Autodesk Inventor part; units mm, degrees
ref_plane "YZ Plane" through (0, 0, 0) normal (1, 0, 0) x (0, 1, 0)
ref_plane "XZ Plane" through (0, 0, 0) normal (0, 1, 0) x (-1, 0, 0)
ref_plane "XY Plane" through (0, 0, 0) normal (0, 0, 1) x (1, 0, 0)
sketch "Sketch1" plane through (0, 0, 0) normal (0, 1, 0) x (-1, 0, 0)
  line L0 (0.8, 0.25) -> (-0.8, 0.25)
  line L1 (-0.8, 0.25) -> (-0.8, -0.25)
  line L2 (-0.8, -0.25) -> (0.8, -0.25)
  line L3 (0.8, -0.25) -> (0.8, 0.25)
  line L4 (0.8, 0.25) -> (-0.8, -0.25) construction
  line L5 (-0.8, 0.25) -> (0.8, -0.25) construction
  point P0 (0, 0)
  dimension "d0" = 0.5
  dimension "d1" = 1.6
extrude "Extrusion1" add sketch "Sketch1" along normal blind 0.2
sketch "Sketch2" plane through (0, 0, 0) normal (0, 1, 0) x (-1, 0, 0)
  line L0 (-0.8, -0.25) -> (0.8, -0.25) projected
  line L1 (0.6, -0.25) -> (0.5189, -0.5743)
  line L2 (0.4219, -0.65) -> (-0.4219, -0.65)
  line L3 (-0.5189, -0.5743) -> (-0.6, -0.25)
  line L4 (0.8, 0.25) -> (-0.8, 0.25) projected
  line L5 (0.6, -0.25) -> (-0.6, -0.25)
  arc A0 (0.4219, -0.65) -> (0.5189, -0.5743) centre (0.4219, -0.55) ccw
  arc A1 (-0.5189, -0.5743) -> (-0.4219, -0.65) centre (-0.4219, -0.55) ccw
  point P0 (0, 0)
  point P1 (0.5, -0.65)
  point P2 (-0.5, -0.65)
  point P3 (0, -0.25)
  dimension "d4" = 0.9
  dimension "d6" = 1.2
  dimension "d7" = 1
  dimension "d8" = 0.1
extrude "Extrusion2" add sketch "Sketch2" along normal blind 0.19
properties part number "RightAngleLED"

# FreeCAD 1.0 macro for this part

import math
import FreeCAD as App
import Part
import Sketcher
from FreeCAD import Vector
Q = App.Units.Quantity


def add_polygon(sketch, points):
    """Adds a closed chain of lines whose ends are joined by coincident constraints."""
    first, n = sketch.GeometryCount, len(points)
    for a, b in zip(points, points[1:] + points[:1]):
        sketch.addGeometry(Part.LineSegment(App.Vector(*a, 0), App.Vector(*b, 0)), False)
    for i in range(n):
        sketch.addConstraint(Sketcher.Constraint("Coincident", first + i, 2, first + (i + 1) % n, 1))

doc = App.newDocument("Part")
body = doc.addObject("PartDesign::Body", "Body")

# Sketch on XZ plane
sketch1 = body.newObject("Sketcher::SketchObject", "Sketch")
sketch1.AttachmentSupport = (doc.getObject("XZ_Plane"), [""])
sketch1.MapMode = "FlatFace"
add_polygon(sketch1, [(-0.8, -0.2), (-0.8, 0.2), (0.8, 0.2), (0.8, -0.2)])  # lines 0-3
sketch1.addConstraint([
    Sketcher.Constraint("Vertical", 0),
    Sketcher.Constraint("Horizontal", 1),
    Sketcher.Constraint("Vertical", 2),
    Sketcher.Constraint("Horizontal", 3),
    Sketcher.Constraint("Symmetric", 0, 2, 2, 2, -1, 1),
    Sketcher.Constraint("DistanceX", 1, 1, 1, 2, 1.6),
    Sketcher.Constraint("DistanceY", 0, 1, 0, 2, 0.5),
])
pad1 = body.newObject("PartDesign::Pad", "Pad")
pad1.Profile = sketch1
pad1.Length = 0.2
pad1.Reversed = True

# Sketch on XZ plane
sketch2 = body.newObject("Sketcher::SketchObject", "Sketch001")
sketch2.AttachmentSupport = (doc.getObject("XZ_Plane"), [""])
sketch2.MapMode = "FlatFace"
sketch2.addGeometry([
    Part.LineSegment(Vector(-0.6, -0.25, 0), Vector(0.6, -0.25, 0)),  # 0
    Part.LineSegment(Vector(0.6, -0.25, 0), Vector(0.52, -0.57, 0)),  # 1
    Part.ArcOfCircle(Part.Circle(Vector(0.42, -0.55, 0), Vector(0, 0, 1), 0.1), math.radians(-90), math.radians(-14)),  # 2
    Part.LineSegment(Vector(0.42, -0.65, 0), Vector(-0.42, -0.65, 0)),  # 3
    Part.ArcOfCircle(Part.Circle(Vector(-0.42, -0.55, 0), Vector(0, 0, 1), 0.1), math.radians(-166), math.radians(-90)),  # 4
    Part.LineSegment(Vector(-0.52, -0.57, 0), Vector(-0.6, -0.25, 0)),  # 5
], False)
sketch2.addConstraint([
    Sketcher.Constraint("Coincident", 0, 2, 1, 1),
    Sketcher.Constraint("Tangent", 1, 2, 2, 2),
    Sketcher.Constraint("Tangent", 2, 1, 3, 1),
    Sketcher.Constraint("Tangent", 3, 2, 4, 2),
    Sketcher.Constraint("Tangent", 4, 1, 5, 1),
    Sketcher.Constraint("Coincident", 5, 2, 0, 1),
    Sketcher.Constraint("Horizontal", 0),
    Sketcher.Constraint("Horizontal", 3),
    Sketcher.Constraint("Equal", 2, 4),
    Sketcher.Constraint("Symmetric", 1, 2, 4, 1, -2),
    Sketcher.Constraint("Radius", 2, 0.1),
    Sketcher.Constraint("DistanceX", 0, 1, 0, 2, 1.2),
    Sketcher.Constraint("Angle", 1, Q("-104.0404 deg")),
    Sketcher.Constraint("DistanceY", 2, 3, 0, 2, 0.3),
    Sketcher.Constraint("DistanceY", 2, 3, -1, 1, 0.55),
])
pad2 = body.newObject("PartDesign::Pad", "Pad001")
pad2.Profile = sketch2
pad2.Length = 0.19
pad2.Reversed = True

doc.recompute()
